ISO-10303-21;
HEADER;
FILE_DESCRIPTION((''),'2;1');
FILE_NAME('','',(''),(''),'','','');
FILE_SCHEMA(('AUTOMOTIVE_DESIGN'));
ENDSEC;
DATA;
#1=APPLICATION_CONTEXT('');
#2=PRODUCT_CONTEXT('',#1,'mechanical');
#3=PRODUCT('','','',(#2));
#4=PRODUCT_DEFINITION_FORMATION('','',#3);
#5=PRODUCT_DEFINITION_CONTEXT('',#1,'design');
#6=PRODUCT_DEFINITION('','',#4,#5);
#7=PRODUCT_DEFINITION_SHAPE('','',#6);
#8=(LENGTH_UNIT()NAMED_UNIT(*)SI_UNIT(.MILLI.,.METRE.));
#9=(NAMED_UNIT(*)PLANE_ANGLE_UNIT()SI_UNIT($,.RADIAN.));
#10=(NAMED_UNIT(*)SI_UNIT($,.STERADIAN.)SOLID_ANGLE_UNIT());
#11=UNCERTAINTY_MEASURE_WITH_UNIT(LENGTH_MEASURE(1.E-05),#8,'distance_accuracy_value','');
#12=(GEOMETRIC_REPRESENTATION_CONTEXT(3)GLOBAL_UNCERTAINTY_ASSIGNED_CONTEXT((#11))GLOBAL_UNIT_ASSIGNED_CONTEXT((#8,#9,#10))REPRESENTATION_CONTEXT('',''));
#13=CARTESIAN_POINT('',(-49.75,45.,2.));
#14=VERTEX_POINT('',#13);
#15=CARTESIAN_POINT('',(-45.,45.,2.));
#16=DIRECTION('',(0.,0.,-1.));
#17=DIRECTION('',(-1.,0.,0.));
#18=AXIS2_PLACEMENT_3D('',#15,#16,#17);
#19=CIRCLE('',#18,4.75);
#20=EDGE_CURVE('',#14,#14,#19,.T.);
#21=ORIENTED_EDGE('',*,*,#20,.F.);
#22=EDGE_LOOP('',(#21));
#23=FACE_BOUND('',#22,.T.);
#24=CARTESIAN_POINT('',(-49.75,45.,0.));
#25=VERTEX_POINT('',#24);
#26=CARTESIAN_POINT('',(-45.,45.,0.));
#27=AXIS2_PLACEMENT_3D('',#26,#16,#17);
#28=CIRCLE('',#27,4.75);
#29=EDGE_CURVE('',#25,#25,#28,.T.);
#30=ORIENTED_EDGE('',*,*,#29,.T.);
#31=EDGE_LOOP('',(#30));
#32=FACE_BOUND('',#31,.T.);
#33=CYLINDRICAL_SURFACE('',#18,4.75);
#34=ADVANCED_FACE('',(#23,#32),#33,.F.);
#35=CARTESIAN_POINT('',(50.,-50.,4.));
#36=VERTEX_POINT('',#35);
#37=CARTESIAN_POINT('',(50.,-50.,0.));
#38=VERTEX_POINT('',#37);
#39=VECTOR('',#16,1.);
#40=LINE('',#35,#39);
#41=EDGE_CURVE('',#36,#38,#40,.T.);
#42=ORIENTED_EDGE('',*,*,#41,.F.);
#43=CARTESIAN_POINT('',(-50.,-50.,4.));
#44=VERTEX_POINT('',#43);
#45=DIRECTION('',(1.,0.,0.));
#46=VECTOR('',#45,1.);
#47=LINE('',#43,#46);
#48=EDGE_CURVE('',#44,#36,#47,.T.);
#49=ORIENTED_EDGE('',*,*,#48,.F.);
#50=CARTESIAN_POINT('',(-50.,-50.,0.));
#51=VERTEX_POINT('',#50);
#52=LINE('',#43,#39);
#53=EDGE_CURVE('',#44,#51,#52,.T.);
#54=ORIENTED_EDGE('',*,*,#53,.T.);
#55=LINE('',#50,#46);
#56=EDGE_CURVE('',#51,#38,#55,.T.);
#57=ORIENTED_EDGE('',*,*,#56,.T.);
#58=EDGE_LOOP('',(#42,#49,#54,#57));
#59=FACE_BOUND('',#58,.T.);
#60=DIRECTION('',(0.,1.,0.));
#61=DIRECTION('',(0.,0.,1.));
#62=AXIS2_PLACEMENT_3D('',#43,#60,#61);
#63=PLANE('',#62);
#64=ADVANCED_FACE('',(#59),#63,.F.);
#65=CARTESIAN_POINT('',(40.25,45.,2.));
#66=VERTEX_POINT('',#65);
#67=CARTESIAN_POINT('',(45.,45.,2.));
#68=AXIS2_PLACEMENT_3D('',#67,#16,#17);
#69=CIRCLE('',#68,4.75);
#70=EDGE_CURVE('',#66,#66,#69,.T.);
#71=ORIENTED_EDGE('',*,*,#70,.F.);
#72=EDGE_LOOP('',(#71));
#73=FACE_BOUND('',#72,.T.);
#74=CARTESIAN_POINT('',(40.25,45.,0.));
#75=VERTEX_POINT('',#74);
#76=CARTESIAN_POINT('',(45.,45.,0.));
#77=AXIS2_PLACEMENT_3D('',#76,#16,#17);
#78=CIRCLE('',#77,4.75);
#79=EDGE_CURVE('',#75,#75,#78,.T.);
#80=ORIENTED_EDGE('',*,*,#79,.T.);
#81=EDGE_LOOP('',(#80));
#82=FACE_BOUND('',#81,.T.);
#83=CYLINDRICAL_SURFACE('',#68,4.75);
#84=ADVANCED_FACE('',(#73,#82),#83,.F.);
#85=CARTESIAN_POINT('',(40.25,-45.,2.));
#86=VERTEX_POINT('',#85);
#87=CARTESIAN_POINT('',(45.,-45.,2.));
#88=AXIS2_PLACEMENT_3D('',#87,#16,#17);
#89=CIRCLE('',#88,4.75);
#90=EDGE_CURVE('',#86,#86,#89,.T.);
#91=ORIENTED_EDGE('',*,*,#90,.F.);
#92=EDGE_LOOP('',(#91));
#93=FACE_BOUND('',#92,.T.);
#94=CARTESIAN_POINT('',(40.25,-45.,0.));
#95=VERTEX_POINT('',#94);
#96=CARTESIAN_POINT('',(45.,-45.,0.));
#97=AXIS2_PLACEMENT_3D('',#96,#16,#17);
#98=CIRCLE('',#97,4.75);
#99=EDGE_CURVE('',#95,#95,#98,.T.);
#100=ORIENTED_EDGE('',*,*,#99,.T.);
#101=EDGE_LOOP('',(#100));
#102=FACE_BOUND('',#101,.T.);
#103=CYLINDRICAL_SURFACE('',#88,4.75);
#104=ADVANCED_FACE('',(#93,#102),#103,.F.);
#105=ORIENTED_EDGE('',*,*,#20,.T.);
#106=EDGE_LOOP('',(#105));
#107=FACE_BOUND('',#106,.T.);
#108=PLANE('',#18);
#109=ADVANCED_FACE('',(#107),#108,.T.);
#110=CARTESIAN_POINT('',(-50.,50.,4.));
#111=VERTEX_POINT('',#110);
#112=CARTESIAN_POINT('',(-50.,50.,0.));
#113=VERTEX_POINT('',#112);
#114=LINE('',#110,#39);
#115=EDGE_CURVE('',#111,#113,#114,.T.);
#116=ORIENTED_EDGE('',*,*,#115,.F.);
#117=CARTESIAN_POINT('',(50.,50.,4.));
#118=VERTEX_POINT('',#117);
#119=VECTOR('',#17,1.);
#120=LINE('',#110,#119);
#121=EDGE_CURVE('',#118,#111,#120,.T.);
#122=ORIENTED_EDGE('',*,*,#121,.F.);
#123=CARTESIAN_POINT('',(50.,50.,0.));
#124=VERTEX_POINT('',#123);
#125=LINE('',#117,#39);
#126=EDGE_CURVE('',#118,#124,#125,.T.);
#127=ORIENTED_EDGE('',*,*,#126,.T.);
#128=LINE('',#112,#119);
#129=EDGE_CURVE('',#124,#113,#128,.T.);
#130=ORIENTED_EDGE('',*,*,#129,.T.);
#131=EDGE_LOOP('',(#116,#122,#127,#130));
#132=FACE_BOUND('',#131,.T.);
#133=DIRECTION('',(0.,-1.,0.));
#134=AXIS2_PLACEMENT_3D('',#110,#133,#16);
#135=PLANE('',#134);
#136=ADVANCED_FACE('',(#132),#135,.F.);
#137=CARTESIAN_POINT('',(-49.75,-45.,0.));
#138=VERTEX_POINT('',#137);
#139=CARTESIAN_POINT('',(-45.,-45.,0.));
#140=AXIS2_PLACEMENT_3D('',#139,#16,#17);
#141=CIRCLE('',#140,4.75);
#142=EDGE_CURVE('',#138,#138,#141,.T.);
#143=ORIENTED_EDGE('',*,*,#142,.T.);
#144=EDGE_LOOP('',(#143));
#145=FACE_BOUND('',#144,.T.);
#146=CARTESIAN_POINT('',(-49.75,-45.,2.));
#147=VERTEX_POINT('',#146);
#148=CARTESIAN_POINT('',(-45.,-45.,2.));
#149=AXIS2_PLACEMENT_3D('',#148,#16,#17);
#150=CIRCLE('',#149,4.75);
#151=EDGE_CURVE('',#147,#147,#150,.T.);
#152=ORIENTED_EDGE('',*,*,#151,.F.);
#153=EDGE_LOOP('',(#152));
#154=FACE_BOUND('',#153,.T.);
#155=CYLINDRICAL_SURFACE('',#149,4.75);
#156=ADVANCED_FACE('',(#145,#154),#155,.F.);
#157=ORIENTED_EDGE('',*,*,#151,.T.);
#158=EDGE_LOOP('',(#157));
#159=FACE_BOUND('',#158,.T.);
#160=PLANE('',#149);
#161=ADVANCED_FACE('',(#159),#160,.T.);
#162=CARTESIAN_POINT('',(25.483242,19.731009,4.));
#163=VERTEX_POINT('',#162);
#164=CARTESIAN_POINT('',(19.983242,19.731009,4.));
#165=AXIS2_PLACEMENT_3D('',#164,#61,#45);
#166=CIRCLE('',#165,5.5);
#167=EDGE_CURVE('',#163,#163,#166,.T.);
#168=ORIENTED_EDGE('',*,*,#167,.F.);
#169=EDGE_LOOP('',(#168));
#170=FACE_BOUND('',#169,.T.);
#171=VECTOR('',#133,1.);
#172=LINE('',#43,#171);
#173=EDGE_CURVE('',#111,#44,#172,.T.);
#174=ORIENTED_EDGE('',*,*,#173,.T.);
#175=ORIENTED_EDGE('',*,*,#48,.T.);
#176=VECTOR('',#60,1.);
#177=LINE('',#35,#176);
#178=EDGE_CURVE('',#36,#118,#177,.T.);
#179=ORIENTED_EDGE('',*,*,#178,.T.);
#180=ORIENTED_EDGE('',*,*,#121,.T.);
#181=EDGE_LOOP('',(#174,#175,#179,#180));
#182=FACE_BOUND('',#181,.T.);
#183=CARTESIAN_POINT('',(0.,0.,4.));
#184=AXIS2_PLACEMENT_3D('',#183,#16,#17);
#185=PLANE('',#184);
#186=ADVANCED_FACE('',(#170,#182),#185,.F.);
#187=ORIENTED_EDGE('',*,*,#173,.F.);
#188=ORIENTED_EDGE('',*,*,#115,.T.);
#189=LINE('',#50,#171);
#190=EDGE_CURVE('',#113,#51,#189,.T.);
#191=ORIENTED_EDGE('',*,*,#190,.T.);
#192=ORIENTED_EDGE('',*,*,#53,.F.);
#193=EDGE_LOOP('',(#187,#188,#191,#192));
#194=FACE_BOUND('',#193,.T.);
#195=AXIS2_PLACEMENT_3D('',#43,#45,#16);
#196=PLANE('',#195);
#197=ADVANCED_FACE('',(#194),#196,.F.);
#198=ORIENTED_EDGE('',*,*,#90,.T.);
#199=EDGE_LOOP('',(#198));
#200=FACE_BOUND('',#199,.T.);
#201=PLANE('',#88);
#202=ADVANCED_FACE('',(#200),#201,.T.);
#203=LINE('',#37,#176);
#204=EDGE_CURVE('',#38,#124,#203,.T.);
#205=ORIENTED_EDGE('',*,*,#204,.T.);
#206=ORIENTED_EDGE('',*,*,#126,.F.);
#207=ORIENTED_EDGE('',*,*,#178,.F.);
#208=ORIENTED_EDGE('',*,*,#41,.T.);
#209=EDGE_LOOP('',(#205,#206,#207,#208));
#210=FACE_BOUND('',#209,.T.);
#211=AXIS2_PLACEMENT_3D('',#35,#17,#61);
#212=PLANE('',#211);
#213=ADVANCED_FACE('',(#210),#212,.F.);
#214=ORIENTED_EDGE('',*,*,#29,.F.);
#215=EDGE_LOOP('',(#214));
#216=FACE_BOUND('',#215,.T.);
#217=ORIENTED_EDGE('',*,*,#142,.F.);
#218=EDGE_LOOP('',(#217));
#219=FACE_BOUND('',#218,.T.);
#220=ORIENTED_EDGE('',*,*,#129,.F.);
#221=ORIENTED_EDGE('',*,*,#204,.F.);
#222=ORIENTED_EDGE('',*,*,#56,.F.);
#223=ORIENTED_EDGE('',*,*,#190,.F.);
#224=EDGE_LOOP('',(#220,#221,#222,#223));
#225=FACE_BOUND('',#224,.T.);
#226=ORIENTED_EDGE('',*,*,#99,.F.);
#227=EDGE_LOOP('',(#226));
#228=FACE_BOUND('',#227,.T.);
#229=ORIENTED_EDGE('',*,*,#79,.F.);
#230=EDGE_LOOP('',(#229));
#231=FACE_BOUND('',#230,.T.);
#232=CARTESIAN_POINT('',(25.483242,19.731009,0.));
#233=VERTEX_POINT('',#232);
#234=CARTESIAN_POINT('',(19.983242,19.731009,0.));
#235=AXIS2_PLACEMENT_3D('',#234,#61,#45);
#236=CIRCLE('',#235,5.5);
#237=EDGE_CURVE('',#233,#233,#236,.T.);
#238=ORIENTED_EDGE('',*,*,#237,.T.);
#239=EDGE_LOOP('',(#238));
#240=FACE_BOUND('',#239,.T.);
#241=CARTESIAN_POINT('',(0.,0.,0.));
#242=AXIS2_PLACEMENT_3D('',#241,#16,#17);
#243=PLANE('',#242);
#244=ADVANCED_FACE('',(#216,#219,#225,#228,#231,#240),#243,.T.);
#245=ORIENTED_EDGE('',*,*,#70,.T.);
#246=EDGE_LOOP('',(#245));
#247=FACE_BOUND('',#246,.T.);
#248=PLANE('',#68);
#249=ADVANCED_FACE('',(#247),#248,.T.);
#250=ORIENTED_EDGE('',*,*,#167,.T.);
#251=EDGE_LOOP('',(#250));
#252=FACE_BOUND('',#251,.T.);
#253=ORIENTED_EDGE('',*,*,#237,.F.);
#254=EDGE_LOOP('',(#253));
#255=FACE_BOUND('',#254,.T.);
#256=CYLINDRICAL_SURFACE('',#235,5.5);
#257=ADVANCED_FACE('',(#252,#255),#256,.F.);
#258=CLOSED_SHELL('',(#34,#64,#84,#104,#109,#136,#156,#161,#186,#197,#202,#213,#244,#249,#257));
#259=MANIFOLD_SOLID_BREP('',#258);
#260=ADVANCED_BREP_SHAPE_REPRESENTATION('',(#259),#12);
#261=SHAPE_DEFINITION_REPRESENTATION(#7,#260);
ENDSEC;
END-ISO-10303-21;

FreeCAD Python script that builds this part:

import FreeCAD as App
import Part
import Sketcher

V = App.Vector
Q = App.Units.Quantity

doc = App.newDocument("Part")
params = doc.addObject("Spreadsheet::Sheet", "Params")
for row, (alias, value) in enumerate([
    ("sketch1_width", "100 mm"),
    ("pad1_length", "4 mm"),
    ("sketch2_diameter", "9.5 mm"),
    ("pocket1_length", "2 mm"),
    ("sketch3_diameter", "11 mm"),
], start=1):
    params.set(f"A{row}", alias)
    params.set(f"B{row}", "=" + value)
    params.setAlias(f"B{row}", alias)

body = doc.addObject("PartDesign::Body", "Body")

# Sketch on XY plane
sketch1 = doc.addObject("Sketcher::SketchObject", "Sketch")
body.addObject(sketch1)
sketch1.AttachmentSupport = (doc.XY_Plane, [""])
sketch1.MapMode = "FlatFace"
sketch1.addGeometry([
    Part.LineSegment(V(-50, 50, 0), V(-50, -50, 0)),
    Part.LineSegment(V(-50, -50, 0), V(50, -50, 0)),
    Part.LineSegment(V(50, -50, 0), V(50, 50, 0)),
    Part.LineSegment(V(50, 50, 0), V(-50, 50, 0)),
], False)
sketch1.addConstraint([
    Sketcher.Constraint("Coincident", 0, 2, 1, 1),
    Sketcher.Constraint("Coincident", 1, 2, 2, 1),
    Sketcher.Constraint("Coincident", 2, 2, 3, 1),
    Sketcher.Constraint("Coincident", 3, 2, 0, 1),
    Sketcher.Constraint("Vertical", 0),
    Sketcher.Constraint("Horizontal", 1),
    Sketcher.Constraint("Vertical", 2),
    Sketcher.Constraint("Horizontal", 3),
    Sketcher.Constraint("Symmetric", 0, 2, 2, 2, -1, 1),
    Sketcher.Constraint("Equal", 3, 0),
    Sketcher.Constraint("DistanceX", 1, 1, 1, 2, Q("100 mm")),
])
sketch1.setExpression("Constraints[10]", "Params.sketch1_width")
pad1 = doc.addObject("PartDesign::Pad", "Pad")
body.addObject(pad1)
pad1.Profile = sketch1
pad1.setExpression("Length", "Params.pad1_length")

# Sketch on XY plane
sketch2 = doc.addObject("Sketcher::SketchObject", "Sketch001")
body.addObject(sketch2)
sketch2.AttachmentSupport = (doc.XY_Plane, [""])
sketch2.MapMode = "FlatFace"
sketch2.addGeometry([
    Part.Circle(V(-45, 45, 0), V(0, 0, 1), 4.8),
    Part.Circle(V(-45, -45, 0), V(0, 0, 1), 4.8),
    Part.Circle(V(45, -45, 0), V(0, 0, 1), 4.8),
    Part.Circle(V(45, 45, 0), V(0, 0, 1), 4.8),
], False)
sketch2.addConstraint([
    Sketcher.Constraint("Equal", 0, 1),
    Sketcher.Constraint("Equal", 1, 2),
    Sketcher.Constraint("Equal", 2, 3),
    Sketcher.Constraint("Symmetric", 0, 3, 2, 3, -1, 1),
    Sketcher.Constraint("Symmetric", 1, 3, 3, 3, -1, 1),
    Sketcher.Constraint("Symmetric", 1, 3, 2, 3, -2),
    Sketcher.Constraint("Diameter", 0, Q("9.5 mm")),
    Sketcher.Constraint("DistanceX", 0, 3, -1, 1, Q("45 mm")),
    Sketcher.Constraint("DistanceY", -1, 1, 0, 3, Q("45 mm")),
])
sketch2.setExpression("Constraints[6]", "Params.sketch2_diameter")
pocket1 = doc.addObject("PartDesign::Pocket", "Pocket")
body.addObject(pocket1)
pocket1.Profile = sketch2
pocket1.setExpression("Length", "Params.pocket1_length")
pocket1.Reversed = True

# Sketch on XY plane
sketch3 = doc.addObject("Sketcher::SketchObject", "Sketch002")
body.addObject(sketch3)
sketch3.AttachmentSupport = (doc.XY_Plane, [""])
sketch3.MapMode = "FlatFace"
sketch3.AttachmentOffset = App.Placement(V(0, 0, 4), App.Rotation())
sketch3.addGeometry(Part.Circle(V(20, 20, 0), V(0, 0, 1), 6), False)
sketch3.addConstraint([
    Sketcher.Constraint("Diameter", 0, Q("11 mm")),
    Sketcher.Constraint("DistanceY", -1, 1, 0, 3, Q("19.731009 mm")),
    Sketcher.Constraint("DistanceX", -1, 1, 0, 3, Q("19.983242 mm")),
])
sketch3.setExpression("Constraints[0]", "Params.sketch3_diameter")
pocket2 = doc.addObject("PartDesign::Pocket", "Pocket001")
body.addObject(pocket2)
pocket2.Profile = sketch3
pocket2.Type = "ThroughAll"

doc.recompute()
